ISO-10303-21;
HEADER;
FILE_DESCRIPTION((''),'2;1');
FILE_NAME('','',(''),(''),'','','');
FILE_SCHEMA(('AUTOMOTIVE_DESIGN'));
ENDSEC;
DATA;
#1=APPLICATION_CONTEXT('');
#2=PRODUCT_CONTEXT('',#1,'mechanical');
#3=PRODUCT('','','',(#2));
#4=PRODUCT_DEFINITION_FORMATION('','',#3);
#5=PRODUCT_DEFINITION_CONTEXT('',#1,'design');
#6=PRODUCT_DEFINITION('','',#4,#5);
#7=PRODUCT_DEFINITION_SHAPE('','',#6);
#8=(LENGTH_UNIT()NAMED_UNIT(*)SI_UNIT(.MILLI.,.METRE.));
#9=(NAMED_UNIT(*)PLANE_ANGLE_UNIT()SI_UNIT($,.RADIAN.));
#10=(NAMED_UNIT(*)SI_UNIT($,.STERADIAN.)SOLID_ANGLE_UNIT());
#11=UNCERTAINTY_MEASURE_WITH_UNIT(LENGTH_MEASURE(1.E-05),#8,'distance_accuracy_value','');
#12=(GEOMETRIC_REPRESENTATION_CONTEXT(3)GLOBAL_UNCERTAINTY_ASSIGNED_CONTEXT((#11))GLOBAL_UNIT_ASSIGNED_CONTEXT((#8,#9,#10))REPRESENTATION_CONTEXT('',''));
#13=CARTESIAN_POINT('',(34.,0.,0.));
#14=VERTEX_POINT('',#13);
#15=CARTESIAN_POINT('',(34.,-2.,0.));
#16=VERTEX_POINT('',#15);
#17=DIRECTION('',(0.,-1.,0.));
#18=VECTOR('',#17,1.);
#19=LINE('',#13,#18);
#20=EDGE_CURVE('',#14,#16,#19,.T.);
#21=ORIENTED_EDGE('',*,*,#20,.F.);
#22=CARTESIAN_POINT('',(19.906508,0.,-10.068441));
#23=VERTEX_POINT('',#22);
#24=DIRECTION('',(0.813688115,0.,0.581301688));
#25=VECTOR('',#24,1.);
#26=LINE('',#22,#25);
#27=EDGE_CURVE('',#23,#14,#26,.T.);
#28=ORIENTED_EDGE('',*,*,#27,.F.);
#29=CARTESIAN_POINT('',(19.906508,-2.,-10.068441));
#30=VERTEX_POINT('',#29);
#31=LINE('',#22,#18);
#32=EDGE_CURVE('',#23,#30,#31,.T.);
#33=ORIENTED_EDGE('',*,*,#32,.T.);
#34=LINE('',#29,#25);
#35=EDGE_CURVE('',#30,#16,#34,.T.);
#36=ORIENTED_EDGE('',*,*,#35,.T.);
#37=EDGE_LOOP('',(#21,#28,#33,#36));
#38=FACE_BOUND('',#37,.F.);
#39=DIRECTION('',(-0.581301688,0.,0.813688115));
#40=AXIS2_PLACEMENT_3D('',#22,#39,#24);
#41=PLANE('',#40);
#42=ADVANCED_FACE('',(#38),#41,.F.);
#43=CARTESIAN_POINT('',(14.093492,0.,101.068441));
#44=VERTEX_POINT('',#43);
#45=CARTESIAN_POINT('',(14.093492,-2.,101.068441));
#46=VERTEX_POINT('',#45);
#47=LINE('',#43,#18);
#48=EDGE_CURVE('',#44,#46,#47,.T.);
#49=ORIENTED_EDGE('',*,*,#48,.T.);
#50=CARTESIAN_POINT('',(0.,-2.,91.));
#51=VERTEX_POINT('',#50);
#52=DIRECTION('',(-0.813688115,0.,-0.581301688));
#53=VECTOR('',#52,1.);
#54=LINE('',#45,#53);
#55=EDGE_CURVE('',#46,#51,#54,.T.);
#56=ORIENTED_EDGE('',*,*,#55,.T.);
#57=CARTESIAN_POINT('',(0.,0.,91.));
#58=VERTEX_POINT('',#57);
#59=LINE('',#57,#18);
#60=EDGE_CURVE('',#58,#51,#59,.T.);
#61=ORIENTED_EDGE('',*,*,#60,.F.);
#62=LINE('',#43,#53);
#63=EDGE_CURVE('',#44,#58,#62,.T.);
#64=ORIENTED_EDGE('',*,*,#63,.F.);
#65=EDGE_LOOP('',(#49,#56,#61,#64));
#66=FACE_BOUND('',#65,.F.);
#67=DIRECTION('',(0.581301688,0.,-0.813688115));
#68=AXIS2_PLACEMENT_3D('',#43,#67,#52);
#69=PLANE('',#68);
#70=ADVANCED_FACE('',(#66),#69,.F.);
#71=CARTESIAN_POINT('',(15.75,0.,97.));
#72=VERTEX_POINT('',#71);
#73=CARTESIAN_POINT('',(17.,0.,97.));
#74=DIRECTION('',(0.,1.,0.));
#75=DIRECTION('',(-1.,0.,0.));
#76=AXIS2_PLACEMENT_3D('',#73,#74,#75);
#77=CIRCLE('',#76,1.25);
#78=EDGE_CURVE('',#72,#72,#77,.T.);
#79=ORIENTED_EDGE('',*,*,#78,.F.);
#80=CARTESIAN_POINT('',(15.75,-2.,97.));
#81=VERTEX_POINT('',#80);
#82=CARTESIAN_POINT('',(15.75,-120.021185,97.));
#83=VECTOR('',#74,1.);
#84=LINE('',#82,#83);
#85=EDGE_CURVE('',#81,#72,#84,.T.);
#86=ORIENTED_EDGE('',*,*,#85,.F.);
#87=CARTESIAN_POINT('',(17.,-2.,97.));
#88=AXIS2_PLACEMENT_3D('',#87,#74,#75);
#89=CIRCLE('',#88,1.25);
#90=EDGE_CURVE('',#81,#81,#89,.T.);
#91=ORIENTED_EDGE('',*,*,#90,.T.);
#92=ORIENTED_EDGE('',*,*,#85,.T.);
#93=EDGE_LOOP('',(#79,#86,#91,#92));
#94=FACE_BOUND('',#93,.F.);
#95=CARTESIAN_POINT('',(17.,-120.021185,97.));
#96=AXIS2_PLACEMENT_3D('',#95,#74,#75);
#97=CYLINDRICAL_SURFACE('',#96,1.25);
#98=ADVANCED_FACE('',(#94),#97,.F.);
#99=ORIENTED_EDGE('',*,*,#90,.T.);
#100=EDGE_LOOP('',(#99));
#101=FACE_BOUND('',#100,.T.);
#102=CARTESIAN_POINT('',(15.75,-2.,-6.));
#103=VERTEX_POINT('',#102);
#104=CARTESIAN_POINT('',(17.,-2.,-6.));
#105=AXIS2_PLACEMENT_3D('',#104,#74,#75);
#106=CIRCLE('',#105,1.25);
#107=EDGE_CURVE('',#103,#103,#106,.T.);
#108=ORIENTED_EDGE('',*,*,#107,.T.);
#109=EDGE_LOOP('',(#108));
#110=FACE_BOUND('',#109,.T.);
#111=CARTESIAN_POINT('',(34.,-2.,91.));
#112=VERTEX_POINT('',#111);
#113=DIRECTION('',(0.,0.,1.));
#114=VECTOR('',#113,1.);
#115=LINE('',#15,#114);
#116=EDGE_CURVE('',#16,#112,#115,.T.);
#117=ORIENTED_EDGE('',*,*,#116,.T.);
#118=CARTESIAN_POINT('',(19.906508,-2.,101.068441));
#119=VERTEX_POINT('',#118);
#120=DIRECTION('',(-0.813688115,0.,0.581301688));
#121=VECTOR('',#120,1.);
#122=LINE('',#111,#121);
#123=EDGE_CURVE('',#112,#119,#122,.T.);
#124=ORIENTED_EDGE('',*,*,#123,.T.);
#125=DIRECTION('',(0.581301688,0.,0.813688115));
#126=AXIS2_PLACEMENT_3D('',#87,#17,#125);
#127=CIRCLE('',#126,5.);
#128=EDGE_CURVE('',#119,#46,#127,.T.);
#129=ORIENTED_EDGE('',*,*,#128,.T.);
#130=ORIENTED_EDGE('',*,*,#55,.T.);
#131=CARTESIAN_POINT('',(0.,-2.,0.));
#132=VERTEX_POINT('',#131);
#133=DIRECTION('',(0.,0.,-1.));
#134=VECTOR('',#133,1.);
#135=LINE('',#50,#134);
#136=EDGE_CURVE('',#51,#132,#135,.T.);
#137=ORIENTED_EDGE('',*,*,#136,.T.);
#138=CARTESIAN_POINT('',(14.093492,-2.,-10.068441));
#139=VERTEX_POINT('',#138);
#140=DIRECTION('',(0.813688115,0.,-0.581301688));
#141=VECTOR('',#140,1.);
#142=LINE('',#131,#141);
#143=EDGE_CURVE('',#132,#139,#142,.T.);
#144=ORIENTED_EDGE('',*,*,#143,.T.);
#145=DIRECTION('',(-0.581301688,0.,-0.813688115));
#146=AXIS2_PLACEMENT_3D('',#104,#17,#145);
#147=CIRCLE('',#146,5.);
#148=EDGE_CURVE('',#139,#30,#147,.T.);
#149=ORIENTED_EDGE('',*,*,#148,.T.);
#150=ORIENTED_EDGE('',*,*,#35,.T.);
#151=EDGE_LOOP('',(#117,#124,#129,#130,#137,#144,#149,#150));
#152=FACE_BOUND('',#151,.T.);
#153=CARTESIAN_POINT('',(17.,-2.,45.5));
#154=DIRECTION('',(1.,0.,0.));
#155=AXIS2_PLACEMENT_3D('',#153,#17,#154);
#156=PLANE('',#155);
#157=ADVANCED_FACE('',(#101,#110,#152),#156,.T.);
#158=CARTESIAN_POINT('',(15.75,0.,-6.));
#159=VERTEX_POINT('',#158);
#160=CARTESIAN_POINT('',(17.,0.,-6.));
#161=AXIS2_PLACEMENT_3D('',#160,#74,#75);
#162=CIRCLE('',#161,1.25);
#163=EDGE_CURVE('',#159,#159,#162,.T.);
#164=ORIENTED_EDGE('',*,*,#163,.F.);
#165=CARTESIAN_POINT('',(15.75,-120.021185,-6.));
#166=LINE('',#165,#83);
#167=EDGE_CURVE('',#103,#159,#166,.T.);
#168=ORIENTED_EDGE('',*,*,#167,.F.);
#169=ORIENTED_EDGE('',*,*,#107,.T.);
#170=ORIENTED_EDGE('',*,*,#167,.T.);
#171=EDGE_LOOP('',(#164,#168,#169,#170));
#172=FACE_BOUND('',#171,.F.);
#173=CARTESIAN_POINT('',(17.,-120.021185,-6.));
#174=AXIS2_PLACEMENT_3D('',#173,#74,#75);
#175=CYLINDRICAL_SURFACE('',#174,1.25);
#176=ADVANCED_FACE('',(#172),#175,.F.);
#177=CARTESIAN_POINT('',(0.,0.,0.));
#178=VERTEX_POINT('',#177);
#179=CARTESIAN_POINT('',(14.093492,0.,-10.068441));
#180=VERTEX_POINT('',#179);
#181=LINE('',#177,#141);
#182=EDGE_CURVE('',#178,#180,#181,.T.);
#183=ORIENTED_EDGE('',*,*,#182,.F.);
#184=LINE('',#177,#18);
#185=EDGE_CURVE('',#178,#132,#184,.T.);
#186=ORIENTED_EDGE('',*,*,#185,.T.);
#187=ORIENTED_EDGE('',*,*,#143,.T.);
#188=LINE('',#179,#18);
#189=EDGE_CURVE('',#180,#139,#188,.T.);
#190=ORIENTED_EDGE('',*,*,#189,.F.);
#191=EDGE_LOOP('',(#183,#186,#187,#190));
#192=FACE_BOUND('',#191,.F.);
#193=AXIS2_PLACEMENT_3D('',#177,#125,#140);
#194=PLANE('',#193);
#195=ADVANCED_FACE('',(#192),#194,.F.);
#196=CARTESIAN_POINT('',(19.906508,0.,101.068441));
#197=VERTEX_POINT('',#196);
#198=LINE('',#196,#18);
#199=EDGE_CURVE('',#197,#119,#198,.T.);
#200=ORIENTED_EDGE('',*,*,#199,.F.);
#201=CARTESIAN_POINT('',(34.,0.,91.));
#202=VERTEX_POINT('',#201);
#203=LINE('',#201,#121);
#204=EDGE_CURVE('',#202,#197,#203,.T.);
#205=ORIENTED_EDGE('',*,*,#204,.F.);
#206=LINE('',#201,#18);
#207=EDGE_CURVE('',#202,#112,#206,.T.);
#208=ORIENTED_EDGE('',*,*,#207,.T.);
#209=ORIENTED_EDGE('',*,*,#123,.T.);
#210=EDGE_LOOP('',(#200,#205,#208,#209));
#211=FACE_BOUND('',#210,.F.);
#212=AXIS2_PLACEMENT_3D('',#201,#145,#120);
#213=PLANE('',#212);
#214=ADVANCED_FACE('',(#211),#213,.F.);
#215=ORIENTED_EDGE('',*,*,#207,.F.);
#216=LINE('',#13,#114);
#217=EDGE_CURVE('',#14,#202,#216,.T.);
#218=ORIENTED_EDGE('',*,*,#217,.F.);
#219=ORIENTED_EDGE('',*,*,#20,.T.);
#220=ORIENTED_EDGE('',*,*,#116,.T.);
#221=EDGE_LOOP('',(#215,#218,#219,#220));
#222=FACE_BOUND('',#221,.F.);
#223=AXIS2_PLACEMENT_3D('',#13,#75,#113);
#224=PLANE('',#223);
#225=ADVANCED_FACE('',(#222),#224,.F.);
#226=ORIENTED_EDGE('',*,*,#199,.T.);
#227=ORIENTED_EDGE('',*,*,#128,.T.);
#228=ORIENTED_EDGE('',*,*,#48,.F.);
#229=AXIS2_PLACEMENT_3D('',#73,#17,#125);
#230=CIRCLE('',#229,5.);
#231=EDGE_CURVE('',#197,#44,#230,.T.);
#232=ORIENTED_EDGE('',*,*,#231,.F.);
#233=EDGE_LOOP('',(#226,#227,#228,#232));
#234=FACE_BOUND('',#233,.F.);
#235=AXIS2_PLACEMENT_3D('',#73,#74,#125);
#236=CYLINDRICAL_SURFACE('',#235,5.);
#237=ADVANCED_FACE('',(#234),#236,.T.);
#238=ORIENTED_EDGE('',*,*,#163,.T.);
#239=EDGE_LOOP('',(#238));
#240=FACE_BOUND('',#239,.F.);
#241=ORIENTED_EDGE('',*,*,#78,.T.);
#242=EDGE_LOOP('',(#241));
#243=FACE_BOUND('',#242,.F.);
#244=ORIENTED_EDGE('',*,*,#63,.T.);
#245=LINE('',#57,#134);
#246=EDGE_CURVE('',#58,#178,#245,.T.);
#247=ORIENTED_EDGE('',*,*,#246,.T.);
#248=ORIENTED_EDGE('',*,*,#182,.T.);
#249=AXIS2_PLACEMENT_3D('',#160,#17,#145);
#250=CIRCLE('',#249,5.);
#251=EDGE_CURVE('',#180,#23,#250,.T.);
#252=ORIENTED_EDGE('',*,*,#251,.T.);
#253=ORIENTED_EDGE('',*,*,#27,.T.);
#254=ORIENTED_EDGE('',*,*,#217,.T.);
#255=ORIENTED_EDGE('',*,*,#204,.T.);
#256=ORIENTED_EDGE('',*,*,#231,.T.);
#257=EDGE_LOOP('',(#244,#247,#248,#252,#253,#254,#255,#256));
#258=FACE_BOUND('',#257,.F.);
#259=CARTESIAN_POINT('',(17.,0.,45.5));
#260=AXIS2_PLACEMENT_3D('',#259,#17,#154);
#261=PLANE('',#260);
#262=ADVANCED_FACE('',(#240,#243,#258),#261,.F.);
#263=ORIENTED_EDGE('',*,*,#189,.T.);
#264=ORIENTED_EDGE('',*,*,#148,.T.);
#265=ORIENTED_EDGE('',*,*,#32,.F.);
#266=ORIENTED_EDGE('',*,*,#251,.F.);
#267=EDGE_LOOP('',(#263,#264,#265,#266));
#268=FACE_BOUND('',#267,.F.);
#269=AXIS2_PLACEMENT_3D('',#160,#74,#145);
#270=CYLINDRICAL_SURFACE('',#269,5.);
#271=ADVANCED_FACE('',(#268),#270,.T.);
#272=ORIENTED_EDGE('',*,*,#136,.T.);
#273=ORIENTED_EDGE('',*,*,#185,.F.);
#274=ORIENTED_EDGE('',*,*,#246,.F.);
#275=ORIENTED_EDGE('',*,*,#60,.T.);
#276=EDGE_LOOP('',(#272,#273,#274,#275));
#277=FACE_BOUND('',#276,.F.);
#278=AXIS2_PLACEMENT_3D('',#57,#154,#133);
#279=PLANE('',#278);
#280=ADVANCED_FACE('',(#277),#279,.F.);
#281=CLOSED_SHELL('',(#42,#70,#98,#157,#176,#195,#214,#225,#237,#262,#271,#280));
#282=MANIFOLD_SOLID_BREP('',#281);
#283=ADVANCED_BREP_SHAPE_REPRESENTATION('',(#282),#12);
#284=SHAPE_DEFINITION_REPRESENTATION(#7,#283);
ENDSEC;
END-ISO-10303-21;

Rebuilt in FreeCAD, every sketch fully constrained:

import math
import FreeCAD as App
import Part
import Sketcher
from FreeCAD import Vector

doc = App.newDocument("Part")
body = doc.addObject("PartDesign::Body", "Body")

# Sketch on XZ plane
sketch1 = body.newObject("Sketcher::SketchObject", "Sketch")
sketch1.AttachmentSupport = (doc.getObject("XZ_Plane"), [""])
sketch1.MapMode = "FlatFace"
sketch1.addGeometry([
    Part.LineSegment(Vector(0, 91, 0), Vector(0, 0, 0)),  # 0
    Part.LineSegment(Vector(0, 0, 0), Vector(14, -10, 0)),  # 1
    Part.ArcOfCircle(Part.Circle(Vector(17, -6, 0), Vector(0, 0, 1), 5), math.radians(-126), math.radians(-54)),  # 2
    Part.LineSegment(Vector(20, -10, 0), Vector(34, 0, 0)),  # 3
    Part.LineSegment(Vector(34, 0, 0), Vector(34, 91, 0)),  # 4
    Part.LineSegment(Vector(34, 91, 0), Vector(20, 101, 0)),  # 5
    Part.ArcOfCircle(Part.Circle(Vector(17, 97, 0), Vector(0, 0, 1), 5), math.radians(54), math.radians(126)),  # 6
    Part.LineSegment(Vector(14, 101, 0), Vector(0, 91, 0)),  # 7
], False)
sketch1.addConstraint([
    Sketcher.Constraint("Coincident", 0, 2, 1, 1),
    Sketcher.Constraint("Tangent", 1, 2, 2, 1),
    Sketcher.Constraint("Tangent", 2, 2, 3, 1),
    Sketcher.Constraint("Coincident", 3, 2, 4, 1),
    Sketcher.Constraint("Coincident", 4, 2, 5, 1),
    Sketcher.Constraint("Tangent", 5, 2, 6, 1),
    Sketcher.Constraint("Tangent", 6, 2, 7, 1),
    Sketcher.Constraint("Coincident", 7, 2, 0, 1),
    Sketcher.Constraint("Vertical", 0),
    Sketcher.Constraint("Vertical", 4),
    Sketcher.Constraint("Coincident", 0, 2, -1, 1),
    Sketcher.Constraint("Equal", 2, 6),
    Sketcher.Constraint("PointOnObject", 3, 2, -1),
    Sketcher.Constraint("Parallel", 1, 5),
    Sketcher.Constraint("Parallel", 3, 7),
    Sketcher.Constraint("Horizontal", 1, 2, 2, 2),
    Sketcher.Constraint("Horizontal", 4, 2, 7, 2),
    Sketcher.Constraint("Radius", 2, 5.0),
    Sketcher.Constraint("DistanceY", 0, 2, 0, 1, 91.0),
    Sketcher.Constraint("DistanceX", -1, 1, 2, 3, 17.0),
    Sketcher.Constraint("DistanceY", 2, 3, -1, 1, 6.0),
])
pad1 = body.newObject("PartDesign::Pad", "Pad")
pad1.Profile = sketch1
pad1.Length = 2

# Sketch on XZ plane
sketch2 = body.newObject("Sketcher::SketchObject", "Sketch001")
sketch2.AttachmentSupport = (doc.getObject("XZ_Plane"), [""])
sketch2.MapMode = "FlatFace"
sketch2.AttachmentOffset = App.Placement(Vector(0, 0, 2), App.Rotation())
sketch2.addGeometry([
    Part.Circle(Vector(17, -6, 0), Vector(0, 0, 1), 1.2),
    Part.Circle(Vector(17, 97, 0), Vector(0, 0, 1), 1.2),
], False)
sketch2.addConstraint([
    Sketcher.Constraint("Equal", 0, 1),
    Sketcher.Constraint("Vertical", 0, 3, 1, 3),
    Sketcher.Constraint("Diameter", 0, 2.5),
    Sketcher.Constraint("DistanceX", -1, 1, 0, 3, 17.0),
    Sketcher.Constraint("DistanceY", 0, 3, -1, 1, 6.0),
    Sketcher.Constraint("DistanceY", -1, 1, 1, 3, 97.0),
])
doc.recompute()
hole = body.newObject("PartDesign::Hole", "Hole")
hole.Profile = sketch2
hole.ThreadType = "None"
hole.Diameter = 2.5
hole.DepthType = "ThroughAll"

doc.recompute()
